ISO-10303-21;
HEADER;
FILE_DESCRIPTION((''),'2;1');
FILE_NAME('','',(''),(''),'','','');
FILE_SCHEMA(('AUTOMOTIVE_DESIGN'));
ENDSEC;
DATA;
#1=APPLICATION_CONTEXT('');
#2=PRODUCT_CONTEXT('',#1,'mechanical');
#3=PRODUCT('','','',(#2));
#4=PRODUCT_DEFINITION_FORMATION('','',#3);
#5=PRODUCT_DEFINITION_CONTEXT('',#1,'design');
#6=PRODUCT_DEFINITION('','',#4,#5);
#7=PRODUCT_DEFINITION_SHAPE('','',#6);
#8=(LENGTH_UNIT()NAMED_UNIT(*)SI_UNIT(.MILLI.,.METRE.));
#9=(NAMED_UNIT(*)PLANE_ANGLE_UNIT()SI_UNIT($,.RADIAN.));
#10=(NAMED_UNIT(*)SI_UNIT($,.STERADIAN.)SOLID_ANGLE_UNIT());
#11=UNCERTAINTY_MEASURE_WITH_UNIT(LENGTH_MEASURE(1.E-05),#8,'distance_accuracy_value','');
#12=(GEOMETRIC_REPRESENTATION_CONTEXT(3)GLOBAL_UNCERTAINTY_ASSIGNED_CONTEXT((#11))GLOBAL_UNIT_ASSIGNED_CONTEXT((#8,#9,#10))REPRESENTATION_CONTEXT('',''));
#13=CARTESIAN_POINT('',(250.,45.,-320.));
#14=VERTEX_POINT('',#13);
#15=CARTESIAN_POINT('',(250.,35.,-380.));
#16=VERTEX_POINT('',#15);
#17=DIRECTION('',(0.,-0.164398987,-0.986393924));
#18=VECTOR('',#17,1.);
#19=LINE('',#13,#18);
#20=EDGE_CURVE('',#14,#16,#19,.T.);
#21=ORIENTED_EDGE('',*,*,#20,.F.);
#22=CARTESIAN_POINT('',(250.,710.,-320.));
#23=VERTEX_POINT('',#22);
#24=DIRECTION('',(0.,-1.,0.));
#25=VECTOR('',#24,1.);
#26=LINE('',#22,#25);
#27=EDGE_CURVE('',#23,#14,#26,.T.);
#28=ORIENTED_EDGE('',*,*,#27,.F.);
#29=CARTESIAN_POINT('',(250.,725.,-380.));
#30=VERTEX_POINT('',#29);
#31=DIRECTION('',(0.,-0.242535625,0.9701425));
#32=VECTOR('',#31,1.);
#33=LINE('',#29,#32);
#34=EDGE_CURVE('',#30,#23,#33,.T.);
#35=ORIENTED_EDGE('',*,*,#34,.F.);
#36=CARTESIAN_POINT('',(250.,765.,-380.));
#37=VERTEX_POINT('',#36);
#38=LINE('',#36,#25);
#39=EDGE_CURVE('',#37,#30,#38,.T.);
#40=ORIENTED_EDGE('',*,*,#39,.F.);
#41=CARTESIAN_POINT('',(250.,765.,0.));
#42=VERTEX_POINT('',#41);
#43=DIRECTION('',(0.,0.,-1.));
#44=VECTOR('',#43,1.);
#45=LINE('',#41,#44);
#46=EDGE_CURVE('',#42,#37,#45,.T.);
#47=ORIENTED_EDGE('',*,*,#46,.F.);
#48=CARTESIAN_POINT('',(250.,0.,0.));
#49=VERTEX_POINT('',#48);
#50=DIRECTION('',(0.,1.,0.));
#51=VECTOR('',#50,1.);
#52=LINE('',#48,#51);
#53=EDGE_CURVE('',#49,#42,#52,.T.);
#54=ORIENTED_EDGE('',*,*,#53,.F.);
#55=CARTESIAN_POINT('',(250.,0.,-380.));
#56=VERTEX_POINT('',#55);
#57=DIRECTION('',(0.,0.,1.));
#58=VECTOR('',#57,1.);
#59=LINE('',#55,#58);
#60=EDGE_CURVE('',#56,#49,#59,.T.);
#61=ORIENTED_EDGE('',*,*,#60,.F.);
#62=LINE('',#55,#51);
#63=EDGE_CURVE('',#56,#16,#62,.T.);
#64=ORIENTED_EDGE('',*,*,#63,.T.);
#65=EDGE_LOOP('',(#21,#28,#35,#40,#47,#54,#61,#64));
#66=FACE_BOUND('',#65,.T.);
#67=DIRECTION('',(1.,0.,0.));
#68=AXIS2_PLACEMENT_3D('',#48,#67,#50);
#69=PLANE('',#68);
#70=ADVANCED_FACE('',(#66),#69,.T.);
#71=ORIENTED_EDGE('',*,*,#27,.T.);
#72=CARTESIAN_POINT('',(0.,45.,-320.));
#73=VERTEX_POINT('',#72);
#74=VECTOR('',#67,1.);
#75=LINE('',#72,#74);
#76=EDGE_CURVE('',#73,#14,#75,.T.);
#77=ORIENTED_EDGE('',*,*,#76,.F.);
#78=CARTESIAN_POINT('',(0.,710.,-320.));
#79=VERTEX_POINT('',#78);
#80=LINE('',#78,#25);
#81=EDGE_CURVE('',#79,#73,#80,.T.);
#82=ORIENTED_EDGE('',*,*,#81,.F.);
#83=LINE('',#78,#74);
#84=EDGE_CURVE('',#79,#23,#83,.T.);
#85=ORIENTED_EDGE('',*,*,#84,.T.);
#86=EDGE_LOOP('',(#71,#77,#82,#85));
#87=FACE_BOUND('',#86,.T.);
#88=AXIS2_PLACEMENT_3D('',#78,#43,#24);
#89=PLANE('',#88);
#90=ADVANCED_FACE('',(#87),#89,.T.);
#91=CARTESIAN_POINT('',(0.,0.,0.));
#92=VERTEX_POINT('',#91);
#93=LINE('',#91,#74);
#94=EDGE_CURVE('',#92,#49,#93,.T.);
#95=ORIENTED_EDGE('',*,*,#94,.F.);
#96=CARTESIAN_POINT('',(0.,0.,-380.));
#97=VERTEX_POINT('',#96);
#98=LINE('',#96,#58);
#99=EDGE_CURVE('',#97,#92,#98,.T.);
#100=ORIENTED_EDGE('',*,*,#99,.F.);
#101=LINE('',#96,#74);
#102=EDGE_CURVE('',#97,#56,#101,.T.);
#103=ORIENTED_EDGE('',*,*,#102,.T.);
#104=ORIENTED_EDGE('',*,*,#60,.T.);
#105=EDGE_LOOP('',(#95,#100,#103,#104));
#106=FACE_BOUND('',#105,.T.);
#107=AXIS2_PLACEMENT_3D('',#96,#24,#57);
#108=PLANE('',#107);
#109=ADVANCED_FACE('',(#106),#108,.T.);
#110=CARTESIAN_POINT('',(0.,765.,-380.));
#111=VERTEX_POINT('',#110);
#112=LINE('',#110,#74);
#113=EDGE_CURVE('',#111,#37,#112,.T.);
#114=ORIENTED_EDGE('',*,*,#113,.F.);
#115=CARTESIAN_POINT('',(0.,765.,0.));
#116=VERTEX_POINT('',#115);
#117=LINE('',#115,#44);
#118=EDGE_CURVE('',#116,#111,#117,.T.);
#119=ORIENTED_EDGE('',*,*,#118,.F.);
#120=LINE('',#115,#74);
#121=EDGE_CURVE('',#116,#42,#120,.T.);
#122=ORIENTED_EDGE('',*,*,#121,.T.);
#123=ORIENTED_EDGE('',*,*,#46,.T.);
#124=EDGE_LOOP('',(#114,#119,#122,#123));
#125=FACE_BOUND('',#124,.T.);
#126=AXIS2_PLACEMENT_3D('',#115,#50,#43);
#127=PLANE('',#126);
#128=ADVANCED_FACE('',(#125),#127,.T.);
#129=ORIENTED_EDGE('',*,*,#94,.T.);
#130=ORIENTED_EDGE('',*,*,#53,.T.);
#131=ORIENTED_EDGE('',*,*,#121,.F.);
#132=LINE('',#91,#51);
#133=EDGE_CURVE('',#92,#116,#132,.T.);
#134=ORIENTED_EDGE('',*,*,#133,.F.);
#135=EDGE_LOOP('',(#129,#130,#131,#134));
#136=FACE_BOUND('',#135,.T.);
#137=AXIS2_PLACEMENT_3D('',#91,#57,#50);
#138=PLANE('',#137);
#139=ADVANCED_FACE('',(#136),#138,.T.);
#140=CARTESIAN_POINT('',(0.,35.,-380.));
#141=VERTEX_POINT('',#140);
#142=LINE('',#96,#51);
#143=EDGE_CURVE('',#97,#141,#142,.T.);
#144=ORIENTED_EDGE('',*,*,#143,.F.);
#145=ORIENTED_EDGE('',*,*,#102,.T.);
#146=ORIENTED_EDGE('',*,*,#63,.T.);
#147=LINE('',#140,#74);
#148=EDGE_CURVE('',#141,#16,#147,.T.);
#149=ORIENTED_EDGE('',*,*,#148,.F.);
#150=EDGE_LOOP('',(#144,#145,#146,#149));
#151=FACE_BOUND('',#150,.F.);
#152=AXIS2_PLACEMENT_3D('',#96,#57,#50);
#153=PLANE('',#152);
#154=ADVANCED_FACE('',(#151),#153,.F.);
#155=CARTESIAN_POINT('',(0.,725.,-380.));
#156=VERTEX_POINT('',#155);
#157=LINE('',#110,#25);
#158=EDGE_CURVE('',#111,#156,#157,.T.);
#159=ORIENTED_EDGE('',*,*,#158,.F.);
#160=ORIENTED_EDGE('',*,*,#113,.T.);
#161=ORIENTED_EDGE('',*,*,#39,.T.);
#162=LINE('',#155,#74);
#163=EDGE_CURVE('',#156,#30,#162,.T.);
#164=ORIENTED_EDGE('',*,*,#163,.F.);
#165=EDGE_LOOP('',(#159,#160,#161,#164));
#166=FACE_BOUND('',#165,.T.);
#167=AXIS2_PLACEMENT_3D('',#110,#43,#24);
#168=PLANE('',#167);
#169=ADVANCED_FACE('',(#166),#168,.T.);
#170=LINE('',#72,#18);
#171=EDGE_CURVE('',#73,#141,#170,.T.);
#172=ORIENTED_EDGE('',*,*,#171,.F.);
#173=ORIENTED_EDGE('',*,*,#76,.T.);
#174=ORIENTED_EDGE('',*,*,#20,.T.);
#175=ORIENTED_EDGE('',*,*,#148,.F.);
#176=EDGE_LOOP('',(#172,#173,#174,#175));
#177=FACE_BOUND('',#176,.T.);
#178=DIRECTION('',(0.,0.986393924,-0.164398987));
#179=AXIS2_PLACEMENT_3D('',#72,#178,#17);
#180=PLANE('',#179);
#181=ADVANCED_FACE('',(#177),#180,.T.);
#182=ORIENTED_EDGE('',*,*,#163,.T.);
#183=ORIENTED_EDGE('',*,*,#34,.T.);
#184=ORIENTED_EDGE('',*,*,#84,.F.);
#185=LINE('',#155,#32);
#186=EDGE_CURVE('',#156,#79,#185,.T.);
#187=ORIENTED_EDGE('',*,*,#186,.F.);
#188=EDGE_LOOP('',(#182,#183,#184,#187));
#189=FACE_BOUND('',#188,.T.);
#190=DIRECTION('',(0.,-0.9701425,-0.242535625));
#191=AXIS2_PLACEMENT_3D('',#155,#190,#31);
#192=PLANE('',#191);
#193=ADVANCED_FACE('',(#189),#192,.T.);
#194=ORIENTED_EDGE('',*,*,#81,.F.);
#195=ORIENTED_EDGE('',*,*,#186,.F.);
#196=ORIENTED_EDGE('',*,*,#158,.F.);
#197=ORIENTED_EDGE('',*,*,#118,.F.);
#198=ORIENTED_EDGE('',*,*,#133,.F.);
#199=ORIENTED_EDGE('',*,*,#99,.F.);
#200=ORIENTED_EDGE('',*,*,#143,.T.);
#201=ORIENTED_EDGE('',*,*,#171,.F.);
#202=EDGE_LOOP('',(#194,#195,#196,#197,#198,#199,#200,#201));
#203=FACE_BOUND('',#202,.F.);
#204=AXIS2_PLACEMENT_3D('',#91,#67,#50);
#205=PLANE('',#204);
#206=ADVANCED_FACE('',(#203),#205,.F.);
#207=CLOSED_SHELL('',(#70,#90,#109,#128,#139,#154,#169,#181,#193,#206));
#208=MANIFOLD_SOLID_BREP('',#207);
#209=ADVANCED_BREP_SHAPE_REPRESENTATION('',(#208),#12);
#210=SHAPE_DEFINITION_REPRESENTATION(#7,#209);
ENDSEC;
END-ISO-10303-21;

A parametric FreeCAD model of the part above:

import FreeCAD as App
import Part
import Sketcher

V = App.Vector
Q = App.Units.Quantity

doc = App.newDocument("Part")
body = doc.addObject("PartDesign::Body", "Body")

sketch1 = body.newObject("Sketcher::SketchObject", "Sketch")
sketch1.AttachmentSupport = (doc.getObject("YZ_Plane"), [""])
sketch1.MapMode = "FlatFace"
sketch1.addGeometry(Part.LineSegment(V(765, 0, 0), V(0, 0, 0)), False)
sketch1.addGeometry(Part.LineSegment(V(0, 0, 0), V(0, -380, 0)), False)
sketch1.addGeometry(Part.LineSegment(V(0, -380, 0), V(35, -380, 0)), False)
sketch1.addGeometry(Part.LineSegment(V(35, -380, 0), V(45, -320, 0)), False)
sketch1.addGeometry(Part.LineSegment(V(45, -320, 0), V(710, -320, 0)), False)
sketch1.addGeometry(Part.LineSegment(V(710, -320, 0), V(725, -380, 0)), False)
sketch1.addGeometry(Part.LineSegment(V(725, -380, 0), V(765, -380, 0)), False)
sketch1.addGeometry(Part.LineSegment(V(765, -380, 0), V(765, 0, 0)), False)
sketch1.addConstraint(Sketcher.Constraint("Coincident", 0, 2, 1, 1))
sketch1.addConstraint(Sketcher.Constraint("Coincident", 1, 2, 2, 1))
sketch1.addConstraint(Sketcher.Constraint("Coincident", 2, 2, 3, 1))
sketch1.addConstraint(Sketcher.Constraint("Coincident", 3, 2, 4, 1))
sketch1.addConstraint(Sketcher.Constraint("Coincident", 4, 2, 5, 1))
sketch1.addConstraint(Sketcher.Constraint("Coincident", 5, 2, 6, 1))
sketch1.addConstraint(Sketcher.Constraint("Coincident", 6, 2, 7, 1))
sketch1.addConstraint(Sketcher.Constraint("Coincident", 7, 2, 0, 1))
sketch1.addConstraint(Sketcher.Constraint("Horizontal", 0))
sketch1.addConstraint(Sketcher.Constraint("Vertical", 1))
sketch1.addConstraint(Sketcher.Constraint("Horizontal", 2))
sketch1.addConstraint(Sketcher.Constraint("Horizontal", 4))
sketch1.addConstraint(Sketcher.Constraint("Horizontal", 6))
sketch1.addConstraint(Sketcher.Constraint("Vertical", 7))
sketch1.addConstraint(Sketcher.Constraint("Coincident", 0, 2, -1, 1))
sketch1.addConstraint(Sketcher.Constraint("Horizontal", 2, 2, 5, 2))
sketch1.addConstraint(Sketcher.Constraint("DistanceX", 0, 2, 0, 1, Q("765 mm")))
sketch1.addConstraint(Sketcher.Constraint("DistanceX", 2, 1, 2, 2, Q("35 mm")))
sketch1.addConstraint(Sketcher.Constraint("DistanceX", 6, 1, 6, 2, Q("40 mm")))
sketch1.addConstraint(Sketcher.Constraint("DistanceY", 1, 2, 1, 1, Q("380 mm")))
sketch1.addConstraint(Sketcher.Constraint("DistanceX", -1, 1, 3, 2, Q("45 mm")))
sketch1.addConstraint(Sketcher.Constraint("DistanceY", 3, 2, -1, 1, Q("320 mm")))
sketch1.addConstraint(Sketcher.Constraint("DistanceX", 4, 2, 6, 2, Q("55 mm")))
pad1 = body.newObject("PartDesign::Pad", "Pad")
pad1.Profile = sketch1
pad1.Length = 250

doc.recompute()
